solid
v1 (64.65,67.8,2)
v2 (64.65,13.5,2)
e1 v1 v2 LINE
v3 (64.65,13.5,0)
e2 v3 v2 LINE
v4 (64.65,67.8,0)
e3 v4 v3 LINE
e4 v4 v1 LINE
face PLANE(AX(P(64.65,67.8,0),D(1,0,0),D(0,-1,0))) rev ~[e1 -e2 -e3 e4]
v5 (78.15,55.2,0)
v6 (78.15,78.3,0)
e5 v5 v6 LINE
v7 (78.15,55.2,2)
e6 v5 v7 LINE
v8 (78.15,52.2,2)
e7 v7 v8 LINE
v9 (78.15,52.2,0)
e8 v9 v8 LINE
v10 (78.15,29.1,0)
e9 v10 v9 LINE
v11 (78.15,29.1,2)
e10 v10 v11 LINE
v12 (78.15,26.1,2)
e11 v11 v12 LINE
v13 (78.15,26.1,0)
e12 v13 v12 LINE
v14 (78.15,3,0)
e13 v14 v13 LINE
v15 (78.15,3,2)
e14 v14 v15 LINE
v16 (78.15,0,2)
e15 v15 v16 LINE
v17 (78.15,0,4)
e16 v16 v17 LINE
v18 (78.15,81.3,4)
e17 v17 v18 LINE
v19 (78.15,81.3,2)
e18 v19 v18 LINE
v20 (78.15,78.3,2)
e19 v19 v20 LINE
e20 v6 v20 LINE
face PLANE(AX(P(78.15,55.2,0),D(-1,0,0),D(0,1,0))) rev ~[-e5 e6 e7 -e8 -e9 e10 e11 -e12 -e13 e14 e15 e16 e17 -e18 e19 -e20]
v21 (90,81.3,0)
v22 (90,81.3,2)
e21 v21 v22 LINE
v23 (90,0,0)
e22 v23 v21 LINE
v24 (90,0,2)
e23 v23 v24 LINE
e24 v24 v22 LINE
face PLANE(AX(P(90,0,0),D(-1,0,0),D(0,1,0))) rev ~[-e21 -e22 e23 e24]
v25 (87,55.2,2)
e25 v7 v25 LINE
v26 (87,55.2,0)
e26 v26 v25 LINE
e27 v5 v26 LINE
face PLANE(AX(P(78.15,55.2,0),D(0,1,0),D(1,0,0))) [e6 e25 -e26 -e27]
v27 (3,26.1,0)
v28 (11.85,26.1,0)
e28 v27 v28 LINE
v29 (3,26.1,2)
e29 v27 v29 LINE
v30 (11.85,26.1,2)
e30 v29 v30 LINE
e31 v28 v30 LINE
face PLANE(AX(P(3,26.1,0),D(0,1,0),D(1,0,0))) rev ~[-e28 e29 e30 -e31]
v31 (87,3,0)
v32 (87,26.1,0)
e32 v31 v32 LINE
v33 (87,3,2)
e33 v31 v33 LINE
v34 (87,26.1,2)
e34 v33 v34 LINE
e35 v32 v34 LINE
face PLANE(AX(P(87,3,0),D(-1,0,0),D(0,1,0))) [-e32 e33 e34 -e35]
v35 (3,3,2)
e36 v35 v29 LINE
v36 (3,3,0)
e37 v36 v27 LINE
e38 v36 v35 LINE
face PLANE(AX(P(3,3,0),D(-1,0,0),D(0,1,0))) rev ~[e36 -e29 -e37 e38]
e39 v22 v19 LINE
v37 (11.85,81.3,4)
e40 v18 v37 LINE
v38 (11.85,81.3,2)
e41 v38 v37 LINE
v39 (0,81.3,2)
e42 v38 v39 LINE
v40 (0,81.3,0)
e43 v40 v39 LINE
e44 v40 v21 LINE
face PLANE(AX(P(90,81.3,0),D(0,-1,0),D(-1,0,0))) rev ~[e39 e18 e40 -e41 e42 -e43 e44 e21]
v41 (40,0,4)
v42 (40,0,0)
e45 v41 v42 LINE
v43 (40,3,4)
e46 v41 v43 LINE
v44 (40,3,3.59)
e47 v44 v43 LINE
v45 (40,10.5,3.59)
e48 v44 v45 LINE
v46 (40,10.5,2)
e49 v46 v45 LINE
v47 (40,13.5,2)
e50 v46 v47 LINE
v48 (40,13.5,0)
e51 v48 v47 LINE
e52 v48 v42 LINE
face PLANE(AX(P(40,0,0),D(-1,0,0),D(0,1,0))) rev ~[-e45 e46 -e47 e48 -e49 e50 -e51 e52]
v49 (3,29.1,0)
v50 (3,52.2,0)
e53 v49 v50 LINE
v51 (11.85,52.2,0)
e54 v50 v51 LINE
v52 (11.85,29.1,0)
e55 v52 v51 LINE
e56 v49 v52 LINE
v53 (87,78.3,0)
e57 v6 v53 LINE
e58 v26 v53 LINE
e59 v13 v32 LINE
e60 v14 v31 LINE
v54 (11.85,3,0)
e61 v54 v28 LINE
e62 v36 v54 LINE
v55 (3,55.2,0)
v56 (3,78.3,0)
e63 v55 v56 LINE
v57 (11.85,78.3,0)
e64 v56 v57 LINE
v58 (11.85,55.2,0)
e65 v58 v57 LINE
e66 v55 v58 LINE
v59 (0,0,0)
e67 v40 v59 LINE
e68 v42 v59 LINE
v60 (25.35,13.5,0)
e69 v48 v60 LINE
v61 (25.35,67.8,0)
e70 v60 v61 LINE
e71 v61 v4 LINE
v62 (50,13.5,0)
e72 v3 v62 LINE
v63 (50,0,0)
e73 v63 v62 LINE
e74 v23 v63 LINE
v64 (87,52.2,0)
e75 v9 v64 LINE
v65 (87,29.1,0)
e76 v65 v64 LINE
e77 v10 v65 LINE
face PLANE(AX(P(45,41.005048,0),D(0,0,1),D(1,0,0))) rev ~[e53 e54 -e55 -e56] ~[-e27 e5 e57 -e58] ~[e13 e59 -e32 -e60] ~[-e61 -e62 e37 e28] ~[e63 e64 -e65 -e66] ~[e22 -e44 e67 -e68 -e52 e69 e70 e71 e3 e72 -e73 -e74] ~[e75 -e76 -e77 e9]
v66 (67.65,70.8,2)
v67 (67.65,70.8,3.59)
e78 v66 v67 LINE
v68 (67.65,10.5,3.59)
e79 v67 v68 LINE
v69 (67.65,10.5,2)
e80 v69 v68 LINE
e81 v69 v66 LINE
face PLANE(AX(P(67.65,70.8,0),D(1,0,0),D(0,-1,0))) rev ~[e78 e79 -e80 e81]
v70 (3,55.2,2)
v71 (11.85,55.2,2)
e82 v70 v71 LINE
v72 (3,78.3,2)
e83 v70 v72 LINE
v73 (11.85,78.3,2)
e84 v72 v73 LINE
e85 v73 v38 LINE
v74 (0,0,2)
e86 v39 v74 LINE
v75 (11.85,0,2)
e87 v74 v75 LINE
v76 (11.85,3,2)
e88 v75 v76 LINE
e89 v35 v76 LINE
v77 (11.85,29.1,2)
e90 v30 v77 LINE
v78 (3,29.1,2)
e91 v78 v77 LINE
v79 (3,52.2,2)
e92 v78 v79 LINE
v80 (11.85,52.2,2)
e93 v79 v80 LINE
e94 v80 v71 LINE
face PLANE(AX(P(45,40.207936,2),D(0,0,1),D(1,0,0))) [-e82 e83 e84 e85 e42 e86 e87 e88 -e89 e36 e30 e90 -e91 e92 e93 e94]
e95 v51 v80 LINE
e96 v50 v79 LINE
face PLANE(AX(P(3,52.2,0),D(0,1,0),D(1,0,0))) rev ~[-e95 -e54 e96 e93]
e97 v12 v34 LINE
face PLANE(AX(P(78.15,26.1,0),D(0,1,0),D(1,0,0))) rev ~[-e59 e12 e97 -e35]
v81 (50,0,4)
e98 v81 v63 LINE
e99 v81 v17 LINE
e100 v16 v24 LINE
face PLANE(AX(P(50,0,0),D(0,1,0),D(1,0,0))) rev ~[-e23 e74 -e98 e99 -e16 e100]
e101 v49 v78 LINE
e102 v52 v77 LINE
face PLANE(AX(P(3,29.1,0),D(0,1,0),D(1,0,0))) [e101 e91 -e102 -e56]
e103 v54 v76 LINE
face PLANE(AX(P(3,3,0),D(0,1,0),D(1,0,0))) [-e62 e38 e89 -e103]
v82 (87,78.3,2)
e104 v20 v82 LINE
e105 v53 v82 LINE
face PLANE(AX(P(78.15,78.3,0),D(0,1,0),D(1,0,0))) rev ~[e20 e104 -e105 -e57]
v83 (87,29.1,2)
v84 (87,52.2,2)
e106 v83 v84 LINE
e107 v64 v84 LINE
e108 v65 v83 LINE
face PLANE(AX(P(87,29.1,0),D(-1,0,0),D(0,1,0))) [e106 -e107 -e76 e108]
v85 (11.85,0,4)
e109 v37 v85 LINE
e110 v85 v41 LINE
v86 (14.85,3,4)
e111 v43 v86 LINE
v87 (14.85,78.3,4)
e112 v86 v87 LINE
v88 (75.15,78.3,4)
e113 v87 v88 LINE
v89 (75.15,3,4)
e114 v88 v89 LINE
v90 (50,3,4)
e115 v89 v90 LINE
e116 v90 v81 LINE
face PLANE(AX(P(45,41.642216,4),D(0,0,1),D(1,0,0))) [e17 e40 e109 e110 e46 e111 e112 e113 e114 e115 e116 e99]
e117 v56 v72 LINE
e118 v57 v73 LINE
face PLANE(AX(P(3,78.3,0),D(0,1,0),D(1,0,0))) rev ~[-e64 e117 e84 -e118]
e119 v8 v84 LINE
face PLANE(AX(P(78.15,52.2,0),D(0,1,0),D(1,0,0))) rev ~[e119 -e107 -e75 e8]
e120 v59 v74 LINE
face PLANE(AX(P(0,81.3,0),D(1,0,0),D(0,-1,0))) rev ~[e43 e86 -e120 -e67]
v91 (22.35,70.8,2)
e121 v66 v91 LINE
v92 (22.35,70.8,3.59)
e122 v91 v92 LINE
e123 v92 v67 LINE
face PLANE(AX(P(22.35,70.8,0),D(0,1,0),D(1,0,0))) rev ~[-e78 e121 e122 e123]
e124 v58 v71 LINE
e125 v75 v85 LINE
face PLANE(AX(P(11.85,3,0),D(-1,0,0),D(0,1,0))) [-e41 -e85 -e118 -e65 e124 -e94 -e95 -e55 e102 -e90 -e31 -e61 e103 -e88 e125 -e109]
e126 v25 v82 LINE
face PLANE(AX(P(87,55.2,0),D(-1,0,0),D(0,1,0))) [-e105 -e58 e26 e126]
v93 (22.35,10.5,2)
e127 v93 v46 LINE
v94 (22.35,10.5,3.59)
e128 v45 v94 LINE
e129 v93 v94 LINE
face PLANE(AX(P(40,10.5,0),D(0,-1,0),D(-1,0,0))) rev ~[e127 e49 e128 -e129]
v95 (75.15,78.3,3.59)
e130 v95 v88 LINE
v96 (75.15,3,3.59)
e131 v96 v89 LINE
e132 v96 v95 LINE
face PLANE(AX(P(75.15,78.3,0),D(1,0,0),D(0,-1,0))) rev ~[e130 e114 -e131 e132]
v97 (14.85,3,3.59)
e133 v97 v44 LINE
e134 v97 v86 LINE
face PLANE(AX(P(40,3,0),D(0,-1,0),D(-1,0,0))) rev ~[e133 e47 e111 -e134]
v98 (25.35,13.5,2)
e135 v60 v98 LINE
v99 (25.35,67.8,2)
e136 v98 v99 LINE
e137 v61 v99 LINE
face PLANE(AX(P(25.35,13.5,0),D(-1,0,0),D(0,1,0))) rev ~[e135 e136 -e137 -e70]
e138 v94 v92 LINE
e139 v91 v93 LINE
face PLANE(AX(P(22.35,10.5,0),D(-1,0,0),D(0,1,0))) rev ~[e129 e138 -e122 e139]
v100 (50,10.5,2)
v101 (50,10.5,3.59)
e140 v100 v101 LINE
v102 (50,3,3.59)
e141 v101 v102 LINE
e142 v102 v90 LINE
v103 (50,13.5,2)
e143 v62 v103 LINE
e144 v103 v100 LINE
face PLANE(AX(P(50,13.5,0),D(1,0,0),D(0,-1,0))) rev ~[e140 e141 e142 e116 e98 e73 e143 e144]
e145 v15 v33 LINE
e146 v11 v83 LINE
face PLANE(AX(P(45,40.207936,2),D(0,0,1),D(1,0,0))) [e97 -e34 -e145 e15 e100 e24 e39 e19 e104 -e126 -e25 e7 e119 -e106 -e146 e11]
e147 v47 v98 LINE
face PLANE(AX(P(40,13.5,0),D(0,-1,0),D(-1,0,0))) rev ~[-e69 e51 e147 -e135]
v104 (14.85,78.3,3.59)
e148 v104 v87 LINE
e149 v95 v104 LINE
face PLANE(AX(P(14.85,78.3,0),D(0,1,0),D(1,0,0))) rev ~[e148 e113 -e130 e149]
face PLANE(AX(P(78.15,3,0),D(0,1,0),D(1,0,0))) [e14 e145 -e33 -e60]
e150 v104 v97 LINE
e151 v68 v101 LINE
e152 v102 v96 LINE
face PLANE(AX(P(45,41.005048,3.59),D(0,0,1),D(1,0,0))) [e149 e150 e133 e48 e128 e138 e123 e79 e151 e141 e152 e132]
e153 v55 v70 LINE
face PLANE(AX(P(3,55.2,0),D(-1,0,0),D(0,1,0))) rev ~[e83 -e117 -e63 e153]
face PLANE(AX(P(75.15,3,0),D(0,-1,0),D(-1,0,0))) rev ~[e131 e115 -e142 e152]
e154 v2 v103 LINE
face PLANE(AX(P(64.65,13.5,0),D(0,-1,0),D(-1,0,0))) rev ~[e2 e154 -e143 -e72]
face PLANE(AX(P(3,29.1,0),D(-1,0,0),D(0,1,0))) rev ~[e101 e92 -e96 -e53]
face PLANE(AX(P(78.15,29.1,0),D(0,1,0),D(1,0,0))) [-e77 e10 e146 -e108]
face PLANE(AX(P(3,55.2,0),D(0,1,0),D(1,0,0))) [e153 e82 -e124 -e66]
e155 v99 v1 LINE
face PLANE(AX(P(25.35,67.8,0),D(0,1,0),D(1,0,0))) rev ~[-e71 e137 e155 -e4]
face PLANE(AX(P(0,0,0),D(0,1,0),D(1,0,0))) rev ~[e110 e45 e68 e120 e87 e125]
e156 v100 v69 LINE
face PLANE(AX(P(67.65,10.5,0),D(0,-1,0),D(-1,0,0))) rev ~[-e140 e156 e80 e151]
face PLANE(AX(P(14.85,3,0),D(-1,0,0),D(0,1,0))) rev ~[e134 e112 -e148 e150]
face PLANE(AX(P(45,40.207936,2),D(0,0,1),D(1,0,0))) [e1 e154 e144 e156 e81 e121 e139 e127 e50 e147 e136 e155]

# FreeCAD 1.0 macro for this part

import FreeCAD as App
import Part
import Sketcher
Q = App.Units.Quantity


def add_polygon(sketch, points):
    """Adds a closed chain of lines whose ends are joined by coincident constraints."""
    first, n = sketch.GeometryCount, len(points)
    for a, b in zip(points, points[1:] + points[:1]):
        sketch.addGeometry(Part.LineSegment(App.Vector(*a, 0), App.Vector(*b, 0)), False)
    for i in range(n):
        sketch.addConstraint(Sketcher.Constraint("Coincident", first + i, 2, first + (i + 1) % n, 1))

doc = App.newDocument("Part")
body = doc.addObject("PartDesign::Body", "Body")

# Sketch on XY plane
sketch1 = doc.addObject("Sketcher::SketchObject", "Sketch")
body.addObject(sketch1)
sketch1.AttachmentSupport = (doc.XY_Plane, [""])
sketch1.MapMode = "FlatFace"
add_polygon(sketch1, [(0, 81), (0, 0), (40, 0), (40, 14), (25, 14), (25, 68), (65, 68), (65, 14), (50, 14), (50, 0), (90, 0), (90, 81)])  # lines 0-11
add_polygon(sketch1, [(12, 3), (3, 3), (3, 26), (12, 26)])  # lines 12-15
add_polygon(sketch1, [(87, 3), (78, 3), (78, 26), (87, 26)])  # lines 16-19
add_polygon(sketch1, [(12, 29), (3, 29), (3, 52), (12, 52)])  # lines 20-23
add_polygon(sketch1, [(12, 55), (3, 55), (3, 78), (12, 78)])  # lines 24-27
add_polygon(sketch1, [(87, 29), (78, 29), (78, 52), (87, 52)])  # lines 28-31
add_polygon(sketch1, [(87, 55), (78, 55), (78, 78), (87, 78)])  # lines 32-35
sketch1.addConstraint([
    Sketcher.Constraint("Vertical", 0),
    Sketcher.Constraint("Horizontal", 1),
    Sketcher.Constraint("Vertical", 2),
    Sketcher.Constraint("Horizontal", 3),
    Sketcher.Constraint("Vertical", 4),
    Sketcher.Constraint("Horizontal", 5),
    Sketcher.Constraint("Vertical", 6),
    Sketcher.Constraint("Horizontal", 7),
    Sketcher.Constraint("Vertical", 8),
    Sketcher.Constraint("Horizontal", 9),
    Sketcher.Constraint("Vertical", 10),
    Sketcher.Constraint("Horizontal", 11),
    Sketcher.Constraint("Horizontal", 12),
    Sketcher.Constraint("Vertical", 13),
    Sketcher.Constraint("Horizontal", 14),
    Sketcher.Constraint("Vertical", 15),
    Sketcher.Constraint("Horizontal", 16),
    Sketcher.Constraint("Vertical", 17),
    Sketcher.Constraint("Horizontal", 18),
    Sketcher.Constraint("Vertical", 19),
    Sketcher.Constraint("Horizontal", 20),
    Sketcher.Constraint("Vertical", 21),
    Sketcher.Constraint("Horizontal", 22),
    Sketcher.Constraint("Vertical", 23),
    Sketcher.Constraint("Horizontal", 24),
    Sketcher.Constraint("Vertical", 25),
    Sketcher.Constraint("Horizontal", 26),
    Sketcher.Constraint("Vertical", 27),
    Sketcher.Constraint("Horizontal", 28),
    Sketcher.Constraint("Vertical", 29),
    Sketcher.Constraint("Horizontal", 30),
    Sketcher.Constraint("Vertical", 31),
    Sketcher.Constraint("Horizontal", 32),
    Sketcher.Constraint("Vertical", 33),
    Sketcher.Constraint("Horizontal", 34),
    Sketcher.Constraint("Vertical", 35),
    Sketcher.Constraint("Coincident", 0, 2, -1, 1),
    Sketcher.Constraint("PointOnObject", 8, 2, -1),
    Sketcher.Constraint("Horizontal", 3, 2, 6, 2),
    Sketcher.Constraint("Horizontal", 15, 2, 16, 2),
    Sketcher.Constraint("Horizontal", 14, 2, 17, 2),
    Sketcher.Constraint("Horizontal", 23, 2, 28, 2),
    Sketcher.Constraint("Horizontal", 22, 2, 29, 2),
    Sketcher.Constraint("Horizontal", 27, 2, 32, 2),
    Sketcher.Constraint("Horizontal", 26, 2, 33, 2),
    Sketcher.Constraint("Vertical", 13, 2, 20, 2),
    Sketcher.Constraint("Vertical", 15, 2, 22, 2),
    Sketcher.Constraint("Vertical", 21, 2, 24, 2),
    Sketcher.Constraint("Vertical", 23, 2, 26, 2),
    Sketcher.Constraint("Vertical", 17, 2, 28, 2),
    Sketcher.Constraint("Vertical", 19, 2, 30, 2),
    Sketcher.Constraint("Vertical", 29, 2, 32, 2),
    Sketcher.Constraint("Vertical", 31, 2, 34, 2),
    Sketcher.Constraint("Equal", 3, 7),
    Sketcher.Constraint("Equal", 1, 9),
    Sketcher.Constraint("Equal", 14, 16),
    Sketcher.Constraint("Equal", 19, 21),
    Sketcher.Constraint("Equal", 23, 25),
    Sketcher.Constraint("DistanceX", 1, 1, 1, 2, Q("40 mm")),
    Sketcher.Constraint("DistanceX", 11, 2, 11, 1, Q("90 mm")),
    Sketcher.Constraint("DistanceX", 5, 1, 5, 2, Q("39.3 mm")),
    Sketcher.Constraint("DistanceY", 0, 2, 0, 1, Q("81.3 mm")),
    Sketcher.Constraint("DistanceY", 2, 1, 2, 2, Q("13.5 mm")),
    Sketcher.Constraint("DistanceY", 4, 1, 4, 2, Q("54.3 mm")),
    Sketcher.Constraint("DistanceY", 13, 1, 13, 2, Q("23.1 mm")),
    Sketcher.Constraint("DistanceX", -1, 1, 12, 2, Q("3 mm")),
    Sketcher.Constraint("DistanceY", -1, 1, 12, 2, Q("3 mm")),
    Sketcher.Constraint("DistanceX", -1, 1, 18, 2, Q("87 mm")),
    Sketcher.Constraint("DistanceY", 13, 2, 20, 2, Q("3 mm")),
    Sketcher.Constraint("DistanceY", 21, 2, 24, 2, Q("3 mm")),
    Sketcher.Constraint("DistanceX", 12, 2, 12, 1, Q("8.85 mm")),
])
pad1 = doc.addObject("PartDesign::Pad", "Pad")
body.addObject(pad1)
pad1.Profile = sketch1
pad1.Length = 2

# Sketch on XY plane
sketch2 = doc.addObject("Sketcher::SketchObject", "Sketch001")
body.addObject(sketch2)
sketch2.AttachmentSupport = (doc.XY_Plane, [""])
sketch2.MapMode = "FlatFace"
add_polygon(sketch2, [(15, 3), (40, 3), (40, 10), (22, 10), (22, 71), (68, 71), (68, 10), (50, 10), (50, 3), (75, 3), (75, 78), (15, 78)])  # lines 0-11
sketch2.addConstraint([
    Sketcher.Constraint("Horizontal", 0),
    Sketcher.Constraint("Vertical", 1),
    Sketcher.Constraint("Horizontal", 2),
    Sketcher.Constraint("Vertical", 3),
    Sketcher.Constraint("Horizontal", 4),
    Sketcher.Constraint("Vertical", 5),
    Sketcher.Constraint("Horizontal", 6),
    Sketcher.Constraint("Vertical", 7),
    Sketcher.Constraint("Horizontal", 8),
    Sketcher.Constraint("Vertical", 9),
    Sketcher.Constraint("Horizontal", 10),
    Sketcher.Constraint("Vertical", 11),
    Sketcher.Constraint("Horizontal", 2, 2, 5, 2),
    Sketcher.Constraint("Horizontal", 0, 2, 7, 2),
    Sketcher.Constraint("Equal", 2, 6),
    Sketcher.Constraint("Equal", 0, 8),
    Sketcher.Constraint("Equal", 10, 3),
    Sketcher.Constraint("DistanceX", 4, 1, 4, 2, Q("45.3 mm")),
    Sketcher.Constraint("DistanceX", 10, 2, 10, 1, Q("60.3 mm")),
    Sketcher.Constraint("DistanceY", 1, 1, 1, 2, Q("7.5 mm")),
    Sketcher.Constraint("DistanceY", 9, 1, 9, 2, Q("75.3 mm")),
    Sketcher.Constraint("DistanceX", -1, 1, 0, 2, Q("40 mm")),
    Sketcher.Constraint("DistanceY", -1, 1, 0, 2, Q("3 mm")),
    Sketcher.Constraint("DistanceX", -1, 1, 6, 2, Q("50 mm")),
])
pad2 = doc.addObject("PartDesign::Pad", "Pad001")
body.addObject(pad2)
pad2.Profile = sketch2
pad2.Length = 3.59

# Sketch on XY plane
sketch3 = doc.addObject("Sketcher::SketchObject", "Sketch002")
body.addObject(sketch3)
sketch3.AttachmentSupport = (doc.XY_Plane, [""])
sketch3.MapMode = "FlatFace"
add_polygon(sketch3, [(11.8, 0), (40, 0), (40, 3), (14.8, 3), (14.8, 78.3), (75.2, 78.3), (75.2, 3), (50, 3), (50, 0), (78.2, 0), (78.2, 81.3), (11.8, 81.3)])  # lines 0-11
sketch3.addConstraint([
    Sketcher.Constraint("Horizontal", 0),
    Sketcher.Constraint("Vertical", 1),
    Sketcher.Constraint("Horizontal", 2),
    Sketcher.Constraint("Vertical", 3),
    Sketcher.Constraint("Horizontal", 4),
    Sketcher.Constraint("Vertical", 5),
    Sketcher.Constraint("Horizontal", 6),
    Sketcher.Constraint("Vertical", 7),
    Sketcher.Constraint("Horizontal", 8),
    Sketcher.Constraint("Vertical", 9),
    Sketcher.Constraint("Horizontal", 10),
    Sketcher.Constraint("Vertical", 11),
    Sketcher.Constraint("PointOnObject", 0, 2, -1),
    Sketcher.Constraint("PointOnObject", 7, 2, -1),
    Sketcher.Constraint("Horizontal", 2, 2, 5, 2),
    Sketcher.Constraint("Equal", 2, 6),
    Sketcher.Constraint("Equal", 0, 8),
    Sketcher.Constraint("DistanceY", 1, 1, 1, 2, Q("3 mm")),
    Sketcher.Constraint("DistanceX", 4, 1, 4, 2, Q("60.3 mm")),
    Sketcher.Constraint("DistanceX", 10, 2, 10, 1, Q("66.3 mm")),
    Sketcher.Constraint("DistanceY", 3, 1, 3, 2, Q("75.3 mm")),
    Sketcher.Constraint("DistanceY", 9, 1, 9, 2, Q("81.3 mm")),
    Sketcher.Constraint("DistanceX", -1, 1, 0, 2, Q("40 mm")),
    Sketcher.Constraint("DistanceX", -1, 1, 6, 2, Q("50 mm")),
])
pad3 = doc.addObject("PartDesign::Pad", "Pad002")
body.addObject(pad3)
pad3.Profile = sketch3
pad3.Length = 4

doc.recompute()
